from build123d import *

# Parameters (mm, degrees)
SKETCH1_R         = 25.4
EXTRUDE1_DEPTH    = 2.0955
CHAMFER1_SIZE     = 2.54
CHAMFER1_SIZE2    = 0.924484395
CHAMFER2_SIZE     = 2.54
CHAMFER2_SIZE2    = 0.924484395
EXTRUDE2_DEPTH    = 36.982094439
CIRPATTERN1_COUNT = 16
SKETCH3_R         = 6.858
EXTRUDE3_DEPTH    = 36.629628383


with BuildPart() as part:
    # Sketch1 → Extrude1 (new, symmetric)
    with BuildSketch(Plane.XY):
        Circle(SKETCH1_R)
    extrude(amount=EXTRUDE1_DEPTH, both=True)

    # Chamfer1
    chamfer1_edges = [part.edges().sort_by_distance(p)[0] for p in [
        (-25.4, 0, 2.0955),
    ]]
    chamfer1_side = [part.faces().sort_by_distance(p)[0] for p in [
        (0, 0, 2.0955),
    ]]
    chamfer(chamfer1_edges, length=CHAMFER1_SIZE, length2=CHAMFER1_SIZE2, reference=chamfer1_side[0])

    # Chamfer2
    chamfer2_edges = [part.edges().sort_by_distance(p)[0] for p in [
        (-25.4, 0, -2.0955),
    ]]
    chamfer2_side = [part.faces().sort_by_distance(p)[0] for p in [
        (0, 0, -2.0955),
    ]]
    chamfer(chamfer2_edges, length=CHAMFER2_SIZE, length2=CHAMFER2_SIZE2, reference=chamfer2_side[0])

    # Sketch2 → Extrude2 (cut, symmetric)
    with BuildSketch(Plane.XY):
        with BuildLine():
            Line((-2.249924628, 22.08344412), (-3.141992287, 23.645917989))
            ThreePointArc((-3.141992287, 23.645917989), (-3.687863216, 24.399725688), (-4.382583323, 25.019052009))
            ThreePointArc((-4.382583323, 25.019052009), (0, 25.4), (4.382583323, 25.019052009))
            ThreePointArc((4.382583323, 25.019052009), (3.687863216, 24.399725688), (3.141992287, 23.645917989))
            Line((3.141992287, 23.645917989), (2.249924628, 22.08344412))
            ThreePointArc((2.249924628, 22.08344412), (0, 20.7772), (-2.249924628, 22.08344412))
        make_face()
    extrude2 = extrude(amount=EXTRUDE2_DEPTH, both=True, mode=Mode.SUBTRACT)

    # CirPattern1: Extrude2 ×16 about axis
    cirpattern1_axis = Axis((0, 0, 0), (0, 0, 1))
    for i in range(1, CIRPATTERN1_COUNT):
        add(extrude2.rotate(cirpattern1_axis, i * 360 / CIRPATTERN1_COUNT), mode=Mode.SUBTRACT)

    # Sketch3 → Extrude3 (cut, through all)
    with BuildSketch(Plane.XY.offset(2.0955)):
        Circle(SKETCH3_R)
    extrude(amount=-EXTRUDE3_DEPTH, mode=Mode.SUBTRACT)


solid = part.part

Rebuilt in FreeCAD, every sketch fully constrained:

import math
import FreeCAD as App
import Part
import Sketcher

V = App.Vector
Q = App.Units.Quantity


def edges_at(feature, points):
    """Names of the edges that pass closest to the given points."""
    edges = feature.Shape.Edges
    near = lambda p: min(range(len(edges)), key=lambda i: edges[i].distToShape(Part.Vertex(*p))[0])
    return sorted({f"Edge{near(p) + 1}" for p in points})

doc = App.newDocument("Part")
body = doc.addObject("PartDesign::Body", "Body")

sketch1 = doc.addObject("Sketcher::SketchObject", "Sketch")
body.addObject(sketch1)
sketch1.AttachmentSupport = (doc.XY_Plane, [""])
sketch1.MapMode = "FlatFace"
sketch1.addGeometry(Part.Circle(V(0, 0, 0), V(0, 0, 1), 25), False)
sketch1.addConstraint([
    Sketcher.Constraint("Coincident", 0, 3, -1, 1),
    Sketcher.Constraint("Diameter", 0, Q("2 in")),
])
pad1 = doc.addObject("PartDesign::Pad", "Pad")
body.addObject(pad1)
pad1.Profile = sketch1
pad1.Length = Q("0.165 in")
pad1.Midplane = True
doc.recompute()

chamfer = doc.addObject("PartDesign::Chamfer", "Chamfer")
body.addObject(chamfer)
chamfer.Base = (pad1, edges_at(pad1, [(-25.4, 0, 2.095)]))
chamfer.ChamferType = "Two distances"
chamfer.Size = Q("0.1 in")
chamfer.Size2 = 0.924484
chamfer.FlipDirection = True
doc.recompute()

chamfer2 = doc.addObject("PartDesign::Chamfer", "Chamfer001")
body.addObject(chamfer2)
chamfer2.Base = (chamfer, edges_at(chamfer, [(-25.4, 0, -2.095)]))
chamfer2.ChamferType = "Two distances"
chamfer2.Size = Q("0.1 in")
chamfer2.Size2 = 0.924484
chamfer2.FlipDirection = True

sketch2 = doc.addObject("Sketcher::SketchObject", "Sketch001")
body.addObject(sketch2)
sketch2.AttachmentSupport = (doc.XY_Plane, [""])
sketch2.MapMode = "FlatFace"
sketch2.addGeometry([
    Part.LineSegment(V(-3.1, 23.6, 0), V(-2.2, 22.1, 0)),
    Part.ArcOfCircle(Part.Circle(V(0, 23.4, 0), V(0, 0, 1), 2.6), math.radians(-150), math.radians(-30)),
    Part.LineSegment(V(2.2, 22.1, 0), V(3.1, 23.6, 0)),
    Part.ArcOfCircle(Part.Circle(V(6.9, 21.5, 0), V(0, 0, 1), 4.3), math.radians(126), math.radians(150)),
    Part.ArcOfCircle(Part.Circle(V(0, 0, 0), V(0, 0, 1), 25.4), math.radians(80.06), math.radians(99.94)),
    Part.ArcOfCircle(Part.Circle(V(-6.9, 21.5, 0), V(0, 0, 1), 4.3), math.radians(30), math.radians(54)),
], False)
sketch2.addConstraint([
    Sketcher.Constraint("Tangent", 0, 2, 1, 1),
    Sketcher.Constraint("Tangent", 1, 2, 2, 1),
    Sketcher.Constraint("Tangent", 2, 2, 3, 2),
    Sketcher.Constraint("Coincident", 3, 1, 4, 1),
    Sketcher.Constraint("Coincident", 4, 2, 5, 2),
    Sketcher.Constraint("Tangent", 5, 1, 0, 1),
    Sketcher.Constraint("Coincident", 4, 3, -1, 1),
    Sketcher.Constraint("Equal", 3, 5),
    Sketcher.Constraint("Symmetric", 3, 3, 5, 3, -2),
    Sketcher.Constraint("PointOnObject", 1, 3, -2),
    Sketcher.Constraint("Radius", 4, Q("1 in")),
    Sketcher.Constraint("Radius", 3, Q("0.17 in")),
    Sketcher.Constraint("Radius", 1, Q("0.102 in")),
    Sketcher.Constraint("DistanceY", -1, 1, 1, 3, Q("0.92 in")),
    Sketcher.Constraint("DistanceY", -1, 1, 3, 3, 21.504992),
    Sketcher.Constraint("DistanceX", 0, 2, 3, 3, 9.141791),
])
pocket1 = doc.addObject("PartDesign::Pocket", "Pocket")
body.addObject(pocket1)
pocket1.Profile = sketch2
pocket1.Length = 73.964189
pocket1.Midplane = True
doc.recompute()

polarpattern = doc.addObject("PartDesign::PolarPattern", "PolarPattern")
body.addObject(polarpattern)
polarpattern.Originals = [pocket1]
polarpattern.Axis = (doc.Z_Axis, [""])
polarpattern.Angle = 360
polarpattern.Occurrences = 16
body.Tip = polarpattern

sketch3 = doc.addObject("Sketcher::SketchObject", "Sketch002")
body.addObject(sketch3)
sketch3.AttachmentSupport = (doc.XY_Plane, [""])
sketch3.MapMode = "FlatFace"
sketch3.AttachmentOffset = App.Placement(V(0, 0, 0.0825 * 25.4), App.Rotation())
sketch3.addGeometry(Part.Circle(V(0, 0, 0), V(0, 0, 1), 7), False)
sketch3.addConstraint([
    Sketcher.Constraint("Coincident", 0, 3, -1, 1),
    Sketcher.Constraint("Diameter", 0, Q("0.54 in")),
])
pocket2 = doc.addObject("PartDesign::Pocket", "Pocket001")
body.addObject(pocket2)
pocket2.Profile = sketch3
pocket2.Type = "ThroughAll"

doc.recompute()
